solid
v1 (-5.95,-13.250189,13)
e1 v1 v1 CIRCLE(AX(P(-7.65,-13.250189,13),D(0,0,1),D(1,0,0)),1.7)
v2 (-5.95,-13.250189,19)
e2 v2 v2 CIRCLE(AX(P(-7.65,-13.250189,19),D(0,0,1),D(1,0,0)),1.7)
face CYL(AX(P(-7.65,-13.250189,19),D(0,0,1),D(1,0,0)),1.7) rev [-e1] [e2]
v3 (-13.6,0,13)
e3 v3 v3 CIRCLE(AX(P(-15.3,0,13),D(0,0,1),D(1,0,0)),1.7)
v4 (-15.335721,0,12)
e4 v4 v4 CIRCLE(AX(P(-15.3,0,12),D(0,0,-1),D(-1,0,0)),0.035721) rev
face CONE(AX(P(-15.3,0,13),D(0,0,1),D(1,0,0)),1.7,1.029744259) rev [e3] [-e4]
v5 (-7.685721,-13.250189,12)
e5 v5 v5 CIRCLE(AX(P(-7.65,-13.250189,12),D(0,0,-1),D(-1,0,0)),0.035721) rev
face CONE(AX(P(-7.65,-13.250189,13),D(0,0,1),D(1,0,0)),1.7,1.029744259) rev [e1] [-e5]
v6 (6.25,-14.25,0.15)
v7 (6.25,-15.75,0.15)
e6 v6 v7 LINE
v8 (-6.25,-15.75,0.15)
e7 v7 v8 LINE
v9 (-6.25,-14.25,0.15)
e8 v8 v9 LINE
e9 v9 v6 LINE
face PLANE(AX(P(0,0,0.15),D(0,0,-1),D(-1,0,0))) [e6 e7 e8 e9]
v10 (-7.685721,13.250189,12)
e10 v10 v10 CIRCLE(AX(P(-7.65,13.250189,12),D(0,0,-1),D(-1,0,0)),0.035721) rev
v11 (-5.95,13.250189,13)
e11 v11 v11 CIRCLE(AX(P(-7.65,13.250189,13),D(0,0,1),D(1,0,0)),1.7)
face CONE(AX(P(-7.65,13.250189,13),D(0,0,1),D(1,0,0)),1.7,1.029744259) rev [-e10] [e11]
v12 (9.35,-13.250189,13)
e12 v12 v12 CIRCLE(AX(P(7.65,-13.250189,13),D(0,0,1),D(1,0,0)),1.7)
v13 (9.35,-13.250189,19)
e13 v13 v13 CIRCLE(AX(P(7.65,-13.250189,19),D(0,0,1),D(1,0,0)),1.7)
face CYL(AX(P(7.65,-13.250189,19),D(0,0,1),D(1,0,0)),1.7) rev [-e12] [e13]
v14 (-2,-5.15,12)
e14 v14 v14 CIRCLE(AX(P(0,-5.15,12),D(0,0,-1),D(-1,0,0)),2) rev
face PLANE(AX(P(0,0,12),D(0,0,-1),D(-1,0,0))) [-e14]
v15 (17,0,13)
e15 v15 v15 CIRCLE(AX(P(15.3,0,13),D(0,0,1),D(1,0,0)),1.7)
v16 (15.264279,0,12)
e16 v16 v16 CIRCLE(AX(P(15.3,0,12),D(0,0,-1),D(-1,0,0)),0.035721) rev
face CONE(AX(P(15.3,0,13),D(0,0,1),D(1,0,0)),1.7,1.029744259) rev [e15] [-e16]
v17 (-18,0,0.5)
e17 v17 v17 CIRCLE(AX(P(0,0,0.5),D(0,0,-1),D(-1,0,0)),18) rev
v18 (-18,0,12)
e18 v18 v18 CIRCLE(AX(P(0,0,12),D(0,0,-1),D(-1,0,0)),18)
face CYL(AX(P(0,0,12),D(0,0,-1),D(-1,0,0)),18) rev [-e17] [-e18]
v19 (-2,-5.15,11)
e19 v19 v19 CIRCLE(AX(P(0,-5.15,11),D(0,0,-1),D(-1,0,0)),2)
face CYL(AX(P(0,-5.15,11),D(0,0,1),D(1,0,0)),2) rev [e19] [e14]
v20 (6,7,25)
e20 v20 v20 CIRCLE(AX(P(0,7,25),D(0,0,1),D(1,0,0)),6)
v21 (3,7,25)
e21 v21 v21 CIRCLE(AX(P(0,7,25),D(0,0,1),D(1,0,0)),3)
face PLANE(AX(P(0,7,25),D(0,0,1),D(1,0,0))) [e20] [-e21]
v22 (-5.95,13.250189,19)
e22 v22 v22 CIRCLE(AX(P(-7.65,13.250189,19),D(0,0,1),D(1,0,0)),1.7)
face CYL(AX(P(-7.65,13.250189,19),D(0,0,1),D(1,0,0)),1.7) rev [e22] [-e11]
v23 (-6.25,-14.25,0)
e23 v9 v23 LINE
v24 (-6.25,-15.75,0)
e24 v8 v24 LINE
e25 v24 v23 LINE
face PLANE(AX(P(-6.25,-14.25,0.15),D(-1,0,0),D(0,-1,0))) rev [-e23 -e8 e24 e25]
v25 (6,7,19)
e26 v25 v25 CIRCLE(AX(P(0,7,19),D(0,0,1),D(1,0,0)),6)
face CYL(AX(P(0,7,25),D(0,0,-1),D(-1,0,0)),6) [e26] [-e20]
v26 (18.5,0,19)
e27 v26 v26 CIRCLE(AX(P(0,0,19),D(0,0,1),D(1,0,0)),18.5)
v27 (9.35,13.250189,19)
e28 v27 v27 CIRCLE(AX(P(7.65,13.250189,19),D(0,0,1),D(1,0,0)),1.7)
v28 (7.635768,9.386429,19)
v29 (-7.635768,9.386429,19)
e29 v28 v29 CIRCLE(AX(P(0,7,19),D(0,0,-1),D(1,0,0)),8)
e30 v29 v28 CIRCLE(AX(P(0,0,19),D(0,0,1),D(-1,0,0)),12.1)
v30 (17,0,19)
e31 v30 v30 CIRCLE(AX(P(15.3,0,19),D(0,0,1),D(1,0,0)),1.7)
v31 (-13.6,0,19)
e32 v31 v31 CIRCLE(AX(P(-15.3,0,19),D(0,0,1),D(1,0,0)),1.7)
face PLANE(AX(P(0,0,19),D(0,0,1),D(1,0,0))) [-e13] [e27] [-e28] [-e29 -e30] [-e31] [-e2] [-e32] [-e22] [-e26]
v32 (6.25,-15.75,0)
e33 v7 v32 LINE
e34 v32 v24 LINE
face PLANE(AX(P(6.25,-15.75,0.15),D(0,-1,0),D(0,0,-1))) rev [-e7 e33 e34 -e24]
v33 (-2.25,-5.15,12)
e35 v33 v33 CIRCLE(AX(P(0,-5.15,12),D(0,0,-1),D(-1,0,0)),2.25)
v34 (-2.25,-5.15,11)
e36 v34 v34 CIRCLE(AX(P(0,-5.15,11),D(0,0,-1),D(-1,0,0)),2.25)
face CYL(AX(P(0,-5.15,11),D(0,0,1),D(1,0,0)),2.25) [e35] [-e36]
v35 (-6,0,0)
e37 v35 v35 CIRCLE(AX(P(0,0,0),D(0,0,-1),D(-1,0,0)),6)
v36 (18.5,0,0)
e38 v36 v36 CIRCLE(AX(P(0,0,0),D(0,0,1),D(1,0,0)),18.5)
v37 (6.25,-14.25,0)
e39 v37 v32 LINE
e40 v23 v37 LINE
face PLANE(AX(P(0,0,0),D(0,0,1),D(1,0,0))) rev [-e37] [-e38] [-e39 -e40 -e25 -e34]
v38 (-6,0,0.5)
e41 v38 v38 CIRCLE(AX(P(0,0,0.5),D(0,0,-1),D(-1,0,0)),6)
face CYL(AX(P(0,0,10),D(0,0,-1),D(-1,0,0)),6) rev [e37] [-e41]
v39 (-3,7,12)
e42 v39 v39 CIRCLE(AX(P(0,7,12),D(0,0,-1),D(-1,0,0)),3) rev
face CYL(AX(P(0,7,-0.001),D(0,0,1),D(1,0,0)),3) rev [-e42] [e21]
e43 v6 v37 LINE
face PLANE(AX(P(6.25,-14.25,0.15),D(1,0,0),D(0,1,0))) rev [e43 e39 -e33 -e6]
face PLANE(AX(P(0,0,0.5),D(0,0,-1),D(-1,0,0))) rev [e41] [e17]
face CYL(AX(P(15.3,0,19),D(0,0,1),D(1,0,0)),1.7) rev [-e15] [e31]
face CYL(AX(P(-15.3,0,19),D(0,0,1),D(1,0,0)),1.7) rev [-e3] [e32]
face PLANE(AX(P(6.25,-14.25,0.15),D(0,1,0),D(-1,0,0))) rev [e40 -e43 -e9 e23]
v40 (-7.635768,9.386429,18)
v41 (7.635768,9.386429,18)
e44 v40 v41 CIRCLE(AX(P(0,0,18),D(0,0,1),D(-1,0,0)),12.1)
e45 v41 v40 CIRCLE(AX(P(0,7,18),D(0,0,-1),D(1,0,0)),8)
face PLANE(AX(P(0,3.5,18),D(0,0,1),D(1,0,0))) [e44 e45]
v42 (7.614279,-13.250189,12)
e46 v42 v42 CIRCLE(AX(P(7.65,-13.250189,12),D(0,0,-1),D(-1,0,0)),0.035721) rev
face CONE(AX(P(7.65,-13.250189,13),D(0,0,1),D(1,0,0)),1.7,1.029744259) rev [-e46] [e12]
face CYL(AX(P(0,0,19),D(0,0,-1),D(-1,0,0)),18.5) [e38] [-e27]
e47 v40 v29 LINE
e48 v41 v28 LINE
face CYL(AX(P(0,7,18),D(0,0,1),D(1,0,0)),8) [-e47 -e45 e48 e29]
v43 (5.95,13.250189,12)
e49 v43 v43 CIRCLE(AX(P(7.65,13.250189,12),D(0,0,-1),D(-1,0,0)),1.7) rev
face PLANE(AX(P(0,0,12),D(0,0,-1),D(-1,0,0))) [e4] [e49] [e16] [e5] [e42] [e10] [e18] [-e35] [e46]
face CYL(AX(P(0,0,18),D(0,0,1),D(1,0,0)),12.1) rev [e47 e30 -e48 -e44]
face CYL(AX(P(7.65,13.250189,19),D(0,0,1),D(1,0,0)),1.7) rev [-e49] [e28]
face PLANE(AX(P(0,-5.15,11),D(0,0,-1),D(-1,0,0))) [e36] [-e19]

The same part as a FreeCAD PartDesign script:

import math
import FreeCAD as App
import Part
import Sketcher

V = App.Vector

doc = App.newDocument("Part")
body = doc.addObject("PartDesign::Body", "Body")

sketch1 = body.newObject("Sketcher::SketchObject", "Sketch")
sketch1.AttachmentSupport = (doc.getObject("XY_Plane"), [""])
sketch1.MapMode = "FlatFace"
sketch1.addGeometry(Part.Circle(V(0, 0, 0), V(0, 0, 1), 18), False)
sketch1.addConstraint(Sketcher.Constraint("Coincident", 0, 3, -1, 1))
sketch1.addConstraint(Sketcher.Constraint("Diameter", 0, 37.0))
pad1 = body.newObject("PartDesign::Pad", "Pad")
pad1.Profile = sketch1
pad1.Length = 19

sketch2 = body.newObject("Sketcher::SketchObject", "Sketch001")
sketch2.AttachmentSupport = (doc.getObject("XY_Plane"), [""])
sketch2.MapMode = "FlatFace"
sketch2.AttachmentOffset = App.Placement(V(0, 0, 19), App.Rotation())
sketch2.addGeometry(Part.Circle(V(0, 7, 0), V(0, 0, 1), 6), False)
sketch2.addConstraint(Sketcher.Constraint("PointOnObject", 0, 3, -2))
sketch2.addConstraint(Sketcher.Constraint("Diameter", 0, 12.0))
sketch2.addConstraint(Sketcher.Constraint("DistanceY", -1, 1, 0, 3, 7.0))
pad2 = body.newObject("PartDesign::Pad", "Pad001")
pad2.Profile = sketch2
pad2.Length = 6

sketch3 = body.newObject("Sketcher::SketchObject", "Sketch002")
sketch3.AttachmentSupport = (doc.getObject("XY_Plane"), [""])
sketch3.MapMode = "FlatFace"
sketch3.AttachmentOffset = App.Placement(V(0, 0, 19), App.Rotation())
sketch3.addGeometry(Part.ArcOfCircle(Part.Circle(V(0, 0, 0), V(0, 0, 1), 12), math.radians(129), math.radians(411)), False)
sketch3.addGeometry(Part.ArcOfCircle(Part.Circle(V(0, 7, 0), V(0, 0, 1), 8), math.radians(163), math.radians(377)), False)
sketch3.addConstraint(Sketcher.Constraint("Coincident", 0, 1, 1, 1))
sketch3.addConstraint(Sketcher.Constraint("Coincident", 1, 2, 0, 2))
sketch3.addConstraint(Sketcher.Constraint("Coincident", 0, 3, -1, 1))
sketch3.addConstraint(Sketcher.Constraint("PointOnObject", 1, 3, -2))
sketch3.addConstraint(Sketcher.Constraint("Radius", 1, 8.0))
sketch3.addConstraint(Sketcher.Constraint("Radius", 0, 12.1))
sketch3.addConstraint(Sketcher.Constraint("DistanceY", -1, 1, 1, 3, 7.0))
pocket1 = body.newObject("PartDesign::Pocket", "Pocket")
pocket1.Profile = sketch3
pocket1.Length = 1

sketch4 = body.newObject("Sketcher::SketchObject", "Sketch003")
sketch4.AttachmentSupport = (doc.getObject("XY_Plane"), [""])
sketch4.MapMode = "FlatFace"
sketch4.AttachmentOffset = App.Placement(V(0, 0, 19), App.Rotation())
sketch4.addGeometry(Part.Circle(V(7.7, -13.3, 0), V(0, 0, 1), 1.7), False)
sketch4.addGeometry(Part.Circle(V(-7.7, -13.3, 0), V(0, 0, 1), 1.7), False)
sketch4.addGeometry(Part.Circle(V(-15.3, 0, 0), V(0, 0, 1), 1.7), False)
sketch4.addGeometry(Part.Circle(V(-7.7, 13.3, 0), V(0, 0, 1), 1.7), False)
sketch4.addGeometry(Part.Circle(V(15.3, 0, 0), V(0, 0, 1), 1.7), False)
sketch4.addGeometry(Part.Circle(V(7.7, 13.3, 0), V(0, 0, 1), 1.7), False)
sketch4.addConstraint(Sketcher.Constraint("Equal", 0, 1))
sketch4.addConstraint(Sketcher.Constraint("Equal", 1, 2))
sketch4.addConstraint(Sketcher.Constraint("Equal", 2, 3))
sketch4.addConstraint(Sketcher.Constraint("Equal", 3, 4))
sketch4.addConstraint(Sketcher.Constraint("Equal", 4, 5))
sketch4.addConstraint(Sketcher.Constraint("Symmetric", 0, 3, 3, 3, -1, 1))
sketch4.addConstraint(Sketcher.Constraint("Symmetric", 2, 3, 4, 3, -1, 1))
sketch4.addConstraint(Sketcher.Constraint("Symmetric", 1, 3, 5, 3, -1, 1))
sketch4.addConstraint(Sketcher.Constraint("Symmetric", 0, 3, 1, 3, -2))
sketch4.addConstraint(Sketcher.Constraint("PointOnObject", 2, 3, -1))
sketch4.addConstraint(Sketcher.Constraint("Diameter", 0, 3.4))
sketch4.addConstraint(Sketcher.Constraint("DistanceX", 2, 3, -1, 1, 15.3))
sketch4.addConstraint(Sketcher.Constraint("DistanceX", 1, 3, 0, 3, 15.3))
sketch4.addConstraint(Sketcher.Constraint("DistanceY", 0, 3, -1, 1, 13.250189))
doc.recompute()
hole = body.newObject("PartDesign::Hole", "Hole")
hole.Profile = sketch4
hole.ThreadType = "None"
hole.Diameter = 3.4
hole.DepthType = "Dimension"
hole.Depth = 6
hole.DrillPoint = "Angled"
hole.DrillPointAngle = 118

sketch5 = body.newObject("Sketcher::SketchObject", "Sketch004")
sketch5.AttachmentSupport = (doc.getObject("XY_Plane"), [""])
sketch5.MapMode = "FlatFace"
sketch5.addGeometry(Part.Circle(V(0, 0, 0), V(0, 0, 1), 18), False)
sketch5.addConstraint(Sketcher.Constraint("Coincident", 0, 3, -1, 1))
sketch5.addConstraint(Sketcher.Constraint("Diameter", 0, 36.0))
pocket2 = body.newObject("PartDesign::Pocket", "Pocket001")
pocket2.Profile = sketch5
pocket2.Length = 12
pocket2.Reversed = True

sketch6 = body.newObject("Sketcher::SketchObject", "Sketch005")
sketch6.AttachmentSupport = (doc.getObject("XY_Plane"), [""])
sketch6.MapMode = "FlatFace"
sketch6.AttachmentOffset = App.Placement(V(0, 0, 25), App.Rotation())
sketch6.addGeometry(Part.Circle(V(0, 7, 0), V(0, 0, 1), 3), False)
sketch6.addConstraint(Sketcher.Constraint("PointOnObject", 0, 3, -2))
sketch6.addConstraint(Sketcher.Constraint("Diameter", 0, 6.0))
sketch6.addConstraint(Sketcher.Constraint("DistanceY", -1, 1, 0, 3, 7.0))
pocket3 = body.newObject("PartDesign::Pocket", "Pocket002")
pocket3.Profile = sketch6
pocket3.Type = "UpToFirst"

sketch7 = body.newObject("Sketcher::SketchObject", "Sketch006")
sketch7.AttachmentSupport = (doc.getObject("XY_Plane"), [""])
sketch7.MapMode = "FlatFace"
sketch7.AttachmentOffset = App.Placement(V(0, 0, 25), App.Rotation())
sketch7.addGeometry(Part.Circle(V(7.7, 13.3, 0), V(0, 0, 1), 1.7), False)
sketch7.addConstraint(Sketcher.Constraint("Diameter", 0, 3.4))
sketch7.addConstraint(Sketcher.Constraint("DistanceX", -1, 1, 0, 3, 7.65))
sketch7.addConstraint(Sketcher.Constraint("DistanceY", -1, 1, 0, 3, 13.250189))
pocket4 = body.newObject("PartDesign::Pocket", "Pocket003")
pocket4.Profile = sketch7
pocket4.Length = 13

sketch8 = body.newObject("Sketcher::SketchObject", "Sketch007")
sketch8.AttachmentSupport = (doc.getObject("XY_Plane"), [""])
sketch8.MapMode = "FlatFace"
sketch8.addGeometry(Part.Circle(V(0, 0, 0), V(0, 0, 1), 18), False)
sketch8.addConstraint(Sketcher.Constraint("Coincident", 0, 3, -1, 1))
sketch8.addConstraint(Sketcher.Constraint("Diameter", 0, 36.0))
pad3 = body.newObject("PartDesign::Pad", "Pad002")
pad3.Profile = sketch8
pad3.Length = 0.5

sketch9 = body.newObject("Sketcher::SketchObject", "Sketch008")
sketch9.AttachmentSupport = (doc.getObject("XY_Plane"), [""])
sketch9.MapMode = "FlatFace"
sketch9.addGeometry(Part.Circle(V(0, 0, 0), V(0, 0, 1), 2), False)
sketch9.addConstraint(Sketcher.Constraint("Coincident", 0, 3, -1, 1))
sketch9.addConstraint(Sketcher.Constraint("Diameter", 0, 4.0))
pocket5 = body.newObject("PartDesign::Pocket", "Pocket004")
pocket5.Profile = sketch9
pocket5.Length = 10
pocket5.Reversed = True

sketch10 = body.newObject("Sketcher::SketchObject", "Sketch009")
sketch10.AttachmentSupport = (doc.getObject("XY_Plane"), [""])
sketch10.MapMode = "FlatFace"
sketch10.addGeometry(Part.LineSegment(V(6.2, -14.2, 0), V(6.2, -15.8, 0)), False)
sketch10.addGeometry(Part.LineSegment(V(6.2, -15.8, 0), V(-6.2, -15.8, 0)), False)
sketch10.addGeometry(Part.LineSegment(V(-6.2, -15.8, 0), V(-6.2, -14.2, 0)), False)
sketch10.addGeometry(Part.LineSegment(V(-6.2, -14.2, 0), V(6.2, -14.2, 0)), False)
sketch10.addConstraint(Sketcher.Constraint("Coincident", 0, 2, 1, 1))
sketch10.addConstraint(Sketcher.Constraint("Coincident", 1, 2, 2, 1))
sketch10.addConstraint(Sketcher.Constraint("Coincident", 2, 2, 3, 1))
sketch10.addConstraint(Sketcher.Constraint("Coincident", 3, 2, 0, 1))
sketch10.addConstraint(Sketcher.Constraint("Vertical", 0))
sketch10.addConstraint(Sketcher.Constraint("Horizontal", 1))
sketch10.addConstraint(Sketcher.Constraint("Vertical", 2))
sketch10.addConstraint(Sketcher.Constraint("Horizontal", 3))
sketch10.addConstraint(Sketcher.Constraint("DistanceX", 1, 2, 1, 1, 12.5))
sketch10.addConstraint(Sketcher.Constraint("DistanceY", 0, 2, 0, 1, 1.5))
sketch10.addConstraint(Sketcher.Constraint("DistanceX", -1, 1, 0, 2, 6.25))
sketch10.addConstraint(Sketcher.Constraint("DistanceY", 0, 2, -1, 1, 15.75))
pocket6 = body.newObject("PartDesign::Pocket", "Pocket005")
pocket6.Profile = sketch10
pocket6.Length = 0.15
pocket6.Reversed = True

sketch11 = body.newObject("Sketcher::SketchObject", "Sketch010")
sketch11.AttachmentSupport = (doc.getObject("XY_Plane"), [""])
sketch11.MapMode = "FlatFace"
sketch11.addGeometry(Part.Circle(V(0, 0, 0), V(0, 0, 1), 6), False)
sketch11.addConstraint(Sketcher.Constraint("Coincident", 0, 3, -1, 1))
sketch11.addConstraint(Sketcher.Constraint("Diameter", 0, 12.0))
pocket7 = body.newObject("PartDesign::Pocket", "Pocket006")
pocket7.Profile = sketch11
pocket7.Length = 10
pocket7.Reversed = True

sketch12 = body.newObject("Sketcher::SketchObject", "Sketch011")
sketch12.AttachmentSupport = (doc.getObject("XY_Plane"), [""])
sketch12.MapMode = "FlatFace"
sketch12.AttachmentOffset = App.Placement(V(0, 0, 12), App.Rotation())
sketch12.addGeometry(Part.Circle(V(0, -5.2, 0), V(0, 0, 1), 2.2), False)
sketch12.addGeometry(Part.Circle(V(0, -5.2, 0), V(0, 0, 1), 2), False)
sketch12.addConstraint(Sketcher.Constraint("Coincident", 1, 3, 0, 3))
sketch12.addConstraint(Sketcher.Constraint("PointOnObject", 0, 3, -2))
sketch12.addConstraint(Sketcher.Constraint("Diameter", 1, 4.0))
sketch12.addConstraint(Sketcher.Constraint("Diameter", 0, 4.5))
sketch12.addConstraint(Sketcher.Constraint("DistanceY", 0, 3, -1, 1, 5.15))
pad4 = body.newObject("PartDesign::Pad", "Pad003")
pad4.Profile = sketch12
pad4.Length = 1
pad4.Reversed = True

doc.recompute()
